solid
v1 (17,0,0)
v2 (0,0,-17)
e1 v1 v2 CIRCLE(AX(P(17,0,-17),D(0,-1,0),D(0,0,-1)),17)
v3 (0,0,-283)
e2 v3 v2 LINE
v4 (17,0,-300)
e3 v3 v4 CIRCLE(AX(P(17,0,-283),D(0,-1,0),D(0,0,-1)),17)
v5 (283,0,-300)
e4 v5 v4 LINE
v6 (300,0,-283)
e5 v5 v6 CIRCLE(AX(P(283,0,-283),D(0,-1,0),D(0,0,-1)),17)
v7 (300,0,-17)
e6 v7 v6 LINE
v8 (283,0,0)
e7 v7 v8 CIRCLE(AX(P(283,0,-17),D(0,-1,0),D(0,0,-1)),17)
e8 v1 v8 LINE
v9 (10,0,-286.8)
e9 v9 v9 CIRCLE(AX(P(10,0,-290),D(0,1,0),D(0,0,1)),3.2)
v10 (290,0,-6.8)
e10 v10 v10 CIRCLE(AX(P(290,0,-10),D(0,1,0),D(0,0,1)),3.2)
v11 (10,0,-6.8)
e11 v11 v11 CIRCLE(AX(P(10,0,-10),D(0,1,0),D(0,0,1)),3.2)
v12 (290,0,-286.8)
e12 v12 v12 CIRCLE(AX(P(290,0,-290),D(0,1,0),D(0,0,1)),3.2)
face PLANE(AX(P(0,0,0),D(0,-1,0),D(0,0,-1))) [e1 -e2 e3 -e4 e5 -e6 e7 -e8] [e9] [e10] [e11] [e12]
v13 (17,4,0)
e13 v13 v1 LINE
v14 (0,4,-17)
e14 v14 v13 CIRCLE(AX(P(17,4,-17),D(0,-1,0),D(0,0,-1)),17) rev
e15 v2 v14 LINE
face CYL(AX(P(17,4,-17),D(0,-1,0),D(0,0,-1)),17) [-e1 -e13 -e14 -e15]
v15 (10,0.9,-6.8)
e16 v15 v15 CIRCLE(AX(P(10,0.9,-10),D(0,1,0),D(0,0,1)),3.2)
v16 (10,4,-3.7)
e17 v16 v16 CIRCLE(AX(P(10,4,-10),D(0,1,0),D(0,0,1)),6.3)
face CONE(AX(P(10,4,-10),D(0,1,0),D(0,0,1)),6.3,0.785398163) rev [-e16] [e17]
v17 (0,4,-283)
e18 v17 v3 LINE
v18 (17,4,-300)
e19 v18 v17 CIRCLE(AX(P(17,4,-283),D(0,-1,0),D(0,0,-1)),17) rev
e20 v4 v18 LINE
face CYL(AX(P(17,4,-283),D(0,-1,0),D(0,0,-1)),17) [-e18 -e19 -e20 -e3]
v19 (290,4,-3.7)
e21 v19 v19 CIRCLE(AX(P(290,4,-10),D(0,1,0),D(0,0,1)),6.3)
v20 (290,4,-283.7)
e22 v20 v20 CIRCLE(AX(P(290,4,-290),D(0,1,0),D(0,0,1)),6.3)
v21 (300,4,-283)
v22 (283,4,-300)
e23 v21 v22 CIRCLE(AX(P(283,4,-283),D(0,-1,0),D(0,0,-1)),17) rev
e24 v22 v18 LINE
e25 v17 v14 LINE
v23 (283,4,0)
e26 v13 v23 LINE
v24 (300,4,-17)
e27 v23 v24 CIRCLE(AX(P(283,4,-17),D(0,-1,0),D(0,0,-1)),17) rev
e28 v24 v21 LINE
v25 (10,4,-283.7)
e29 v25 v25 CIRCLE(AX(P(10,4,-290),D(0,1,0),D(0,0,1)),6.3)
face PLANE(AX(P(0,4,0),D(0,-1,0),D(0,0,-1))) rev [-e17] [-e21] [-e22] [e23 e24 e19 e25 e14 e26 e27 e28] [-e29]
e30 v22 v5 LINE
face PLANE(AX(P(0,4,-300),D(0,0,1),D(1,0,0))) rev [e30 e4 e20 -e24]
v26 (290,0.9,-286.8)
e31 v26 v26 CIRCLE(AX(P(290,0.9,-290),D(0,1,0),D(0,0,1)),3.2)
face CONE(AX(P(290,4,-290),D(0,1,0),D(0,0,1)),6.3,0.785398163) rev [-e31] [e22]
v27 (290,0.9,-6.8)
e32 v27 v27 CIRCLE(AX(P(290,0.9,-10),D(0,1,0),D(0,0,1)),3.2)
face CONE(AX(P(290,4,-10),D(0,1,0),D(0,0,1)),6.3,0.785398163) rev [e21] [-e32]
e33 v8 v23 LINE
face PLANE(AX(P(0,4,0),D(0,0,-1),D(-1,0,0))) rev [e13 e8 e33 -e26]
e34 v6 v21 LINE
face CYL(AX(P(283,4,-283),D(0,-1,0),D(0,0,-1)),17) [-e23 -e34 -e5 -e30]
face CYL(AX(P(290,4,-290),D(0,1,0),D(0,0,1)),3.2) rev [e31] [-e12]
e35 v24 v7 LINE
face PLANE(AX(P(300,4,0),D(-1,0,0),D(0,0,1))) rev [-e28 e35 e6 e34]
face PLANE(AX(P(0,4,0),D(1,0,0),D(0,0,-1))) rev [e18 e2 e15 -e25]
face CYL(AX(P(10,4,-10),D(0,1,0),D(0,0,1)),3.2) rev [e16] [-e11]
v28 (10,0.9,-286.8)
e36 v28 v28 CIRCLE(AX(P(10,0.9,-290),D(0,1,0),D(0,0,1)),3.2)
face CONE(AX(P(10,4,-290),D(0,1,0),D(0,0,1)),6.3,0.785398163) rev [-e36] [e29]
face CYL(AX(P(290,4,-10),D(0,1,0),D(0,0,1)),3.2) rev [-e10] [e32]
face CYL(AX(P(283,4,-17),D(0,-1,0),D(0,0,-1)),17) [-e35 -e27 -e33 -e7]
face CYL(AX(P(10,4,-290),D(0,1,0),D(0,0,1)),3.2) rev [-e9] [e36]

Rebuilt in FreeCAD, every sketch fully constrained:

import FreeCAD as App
import Part
import Sketcher
Q = App.Units.Quantity


def edges_at(feature, points):
    """Names of the edges that pass closest to the given points."""
    edges = feature.Shape.Edges
    near = lambda p: min(range(len(edges)), key=lambda i: edges[i].distToShape(Part.Vertex(*p))[0])
    return sorted({f"Edge{near(p) + 1}" for p in points})

doc = App.newDocument("Part")
body = doc.addObject("PartDesign::Body", "Body")

sketch1 = doc.addObject("Sketcher::SketchObject", "Sketch")
body.addObject(sketch1)
sketch1.AttachmentSupport = (doc.XZ_Plane, [""])
sketch1.MapMode = "FlatFace"
sketch1.addGeometry(Part.LineSegment(App.Vector(0, -300, 0), App.Vector(0, 0, 0)), False)
sketch1.addGeometry(Part.LineSegment(App.Vector(0, 0, 0), App.Vector(300, 0, 0)), False)
sketch1.addGeometry(Part.LineSegment(App.Vector(300, 0, 0), App.Vector(300, -300, 0)), False)
sketch1.addGeometry(Part.LineSegment(App.Vector(300, -300, 0), App.Vector(0, -300, 0)), False)
sketch1.addConstraint(Sketcher.Constraint("Coincident", 0, 2, 1, 1))
sketch1.addConstraint(Sketcher.Constraint("Coincident", 1, 2, 2, 1))
sketch1.addConstraint(Sketcher.Constraint("Coincident", 2, 2, 3, 1))
sketch1.addConstraint(Sketcher.Constraint("Coincident", 3, 2, 0, 1))
sketch1.addConstraint(Sketcher.Constraint("Vertical", 0))
sketch1.addConstraint(Sketcher.Constraint("Horizontal", 1))
sketch1.addConstraint(Sketcher.Constraint("Vertical", 2))
sketch1.addConstraint(Sketcher.Constraint("Horizontal", 3))
sketch1.addConstraint(Sketcher.Constraint("Coincident", 0, 2, -1, 1))
sketch1.addConstraint(Sketcher.Constraint("Equal", 3, 0))
sketch1.addConstraint(Sketcher.Constraint("DistanceX", 1, 1, 1, 2, 300.0))
pad1 = doc.addObject("PartDesign::Pad", "Pad")
body.addObject(pad1)
pad1.Profile = sketch1
pad1.Length = 4
pad1.Reversed = True
doc.recompute()

fillet = doc.addObject("PartDesign::Fillet", "Fillet")
body.addObject(fillet)
fillet.Base = (pad1, edges_at(pad1, [
    (0, 2, -300),
    (300, 2, -300),
    (300, 2, 0),
    (0, 2, 0),
]))
fillet.Radius = 17

sketch2 = doc.addObject("Sketcher::SketchObject", "Sketch001")
body.addObject(sketch2)
sketch2.AttachmentSupport = (doc.YZ_Plane, [""])
sketch2.MapMode = "FlatFace"
sketch2.AttachmentOffset = App.Placement(App.Vector(0, 0, 290), App.Rotation())
sketch2.addGeometry(Part.LineSegment(App.Vector(0, -10, 0), App.Vector(4, -10, 0)), False)
sketch2.addGeometry(Part.LineSegment(App.Vector(4, -10, 0), App.Vector(4, -3.7, 0)), False)
sketch2.addGeometry(Part.LineSegment(App.Vector(4, -3.7, 0), App.Vector(0.9, -6.8, 0)), False)
sketch2.addGeometry(Part.LineSegment(App.Vector(0.9, -6.8, 0), App.Vector(0, -6.8, 0)), False)
sketch2.addGeometry(Part.LineSegment(App.Vector(0, -6.8, 0), App.Vector(0, -10, 0)), False)
sketch2.addGeometry(Part.LineSegment(App.Vector(4, -10, 0), App.Vector(0, -10, 0)), True)
sketch2.addConstraint(Sketcher.Constraint("Coincident", 0, 2, 1, 1))
sketch2.addConstraint(Sketcher.Constraint("Coincident", 1, 2, 2, 1))
sketch2.addConstraint(Sketcher.Constraint("Coincident", 2, 2, 3, 1))
sketch2.addConstraint(Sketcher.Constraint("Coincident", 3, 2, 4, 1))
sketch2.addConstraint(Sketcher.Constraint("Coincident", 4, 2, 0, 1))
sketch2.addConstraint(Sketcher.Constraint("Horizontal", 0))
sketch2.addConstraint(Sketcher.Constraint("Vertical", 1))
sketch2.addConstraint(Sketcher.Constraint("Horizontal", 3))
sketch2.addConstraint(Sketcher.Constraint("Vertical", 4))
sketch2.addConstraint(Sketcher.Constraint("Horizontal", 5))
sketch2.addConstraint(Sketcher.Constraint("Coincident", 5, 1, 0, 2))
sketch2.addConstraint(Sketcher.Constraint("PointOnObject", 3, 2, -2))
sketch2.addConstraint(Sketcher.Constraint("PointOnObject", 5, 2, -2))
sketch2.addConstraint(Sketcher.Constraint("DistanceX", 0, 1, 0, 2, 4.0))
sketch2.addConstraint(Sketcher.Constraint("Angle", 2, Q("-135 deg")))
sketch2.addConstraint(Sketcher.Constraint("DistanceX", 3, 2, 3, 1, 0.9))
sketch2.addConstraint(Sketcher.Constraint("DistanceY", 1, 1, 1, 2, 6.3))
sketch2.addConstraint(Sketcher.Constraint("DistanceY", 0, 2, -1, 1, 10.0))
groove = doc.addObject("PartDesign::Groove", "Groove")
body.addObject(groove)
groove.Profile = sketch2
groove.ReferenceAxis = (sketch2, ["Axis0"])
groove.Angle = 360
doc.recompute()

linearpattern = doc.addObject("PartDesign::LinearPattern", "LinearPattern")
body.addObject(linearpattern)
linearpattern.Originals = [groove]
linearpattern.Direction = (doc.X_Axis, [""])
linearpattern.Mode = "offset"
linearpattern.Offset = 280
linearpattern.Occurrences = 2
linearpattern.Reversed = True
body.Tip = linearpattern
doc.recompute()

datumline = doc.addObject("PartDesign::Line", "DatumLine")
body.addObject(datumline)
datumline.Placement = App.Placement(App.Vector(0, 0, 0), App.Rotation(App.Vector(0, 0, 1), App.Vector(-0.707106781, 0, -0.707106781)))
linearpattern2 = doc.addObject("PartDesign::LinearPattern", "LinearPattern001")
body.addObject(linearpattern2)
linearpattern2.Originals = [groove]
linearpattern2.Direction = (datumline, [""])
linearpattern2.Mode = "offset"
linearpattern2.Offset = 395.979797
linearpattern2.Occurrences = 2
body.Tip = linearpattern2
doc.recompute()

linearpattern3 = doc.addObject("PartDesign::LinearPattern", "LinearPattern002")
body.addObject(linearpattern3)
linearpattern3.Originals = [groove]
linearpattern3.Direction = (doc.Z_Axis, [""])
linearpattern3.Mode = "offset"
linearpattern3.Offset = 280
linearpattern3.Occurrences = 2
linearpattern3.Reversed = True
body.Tip = linearpattern3

doc.recompute()
